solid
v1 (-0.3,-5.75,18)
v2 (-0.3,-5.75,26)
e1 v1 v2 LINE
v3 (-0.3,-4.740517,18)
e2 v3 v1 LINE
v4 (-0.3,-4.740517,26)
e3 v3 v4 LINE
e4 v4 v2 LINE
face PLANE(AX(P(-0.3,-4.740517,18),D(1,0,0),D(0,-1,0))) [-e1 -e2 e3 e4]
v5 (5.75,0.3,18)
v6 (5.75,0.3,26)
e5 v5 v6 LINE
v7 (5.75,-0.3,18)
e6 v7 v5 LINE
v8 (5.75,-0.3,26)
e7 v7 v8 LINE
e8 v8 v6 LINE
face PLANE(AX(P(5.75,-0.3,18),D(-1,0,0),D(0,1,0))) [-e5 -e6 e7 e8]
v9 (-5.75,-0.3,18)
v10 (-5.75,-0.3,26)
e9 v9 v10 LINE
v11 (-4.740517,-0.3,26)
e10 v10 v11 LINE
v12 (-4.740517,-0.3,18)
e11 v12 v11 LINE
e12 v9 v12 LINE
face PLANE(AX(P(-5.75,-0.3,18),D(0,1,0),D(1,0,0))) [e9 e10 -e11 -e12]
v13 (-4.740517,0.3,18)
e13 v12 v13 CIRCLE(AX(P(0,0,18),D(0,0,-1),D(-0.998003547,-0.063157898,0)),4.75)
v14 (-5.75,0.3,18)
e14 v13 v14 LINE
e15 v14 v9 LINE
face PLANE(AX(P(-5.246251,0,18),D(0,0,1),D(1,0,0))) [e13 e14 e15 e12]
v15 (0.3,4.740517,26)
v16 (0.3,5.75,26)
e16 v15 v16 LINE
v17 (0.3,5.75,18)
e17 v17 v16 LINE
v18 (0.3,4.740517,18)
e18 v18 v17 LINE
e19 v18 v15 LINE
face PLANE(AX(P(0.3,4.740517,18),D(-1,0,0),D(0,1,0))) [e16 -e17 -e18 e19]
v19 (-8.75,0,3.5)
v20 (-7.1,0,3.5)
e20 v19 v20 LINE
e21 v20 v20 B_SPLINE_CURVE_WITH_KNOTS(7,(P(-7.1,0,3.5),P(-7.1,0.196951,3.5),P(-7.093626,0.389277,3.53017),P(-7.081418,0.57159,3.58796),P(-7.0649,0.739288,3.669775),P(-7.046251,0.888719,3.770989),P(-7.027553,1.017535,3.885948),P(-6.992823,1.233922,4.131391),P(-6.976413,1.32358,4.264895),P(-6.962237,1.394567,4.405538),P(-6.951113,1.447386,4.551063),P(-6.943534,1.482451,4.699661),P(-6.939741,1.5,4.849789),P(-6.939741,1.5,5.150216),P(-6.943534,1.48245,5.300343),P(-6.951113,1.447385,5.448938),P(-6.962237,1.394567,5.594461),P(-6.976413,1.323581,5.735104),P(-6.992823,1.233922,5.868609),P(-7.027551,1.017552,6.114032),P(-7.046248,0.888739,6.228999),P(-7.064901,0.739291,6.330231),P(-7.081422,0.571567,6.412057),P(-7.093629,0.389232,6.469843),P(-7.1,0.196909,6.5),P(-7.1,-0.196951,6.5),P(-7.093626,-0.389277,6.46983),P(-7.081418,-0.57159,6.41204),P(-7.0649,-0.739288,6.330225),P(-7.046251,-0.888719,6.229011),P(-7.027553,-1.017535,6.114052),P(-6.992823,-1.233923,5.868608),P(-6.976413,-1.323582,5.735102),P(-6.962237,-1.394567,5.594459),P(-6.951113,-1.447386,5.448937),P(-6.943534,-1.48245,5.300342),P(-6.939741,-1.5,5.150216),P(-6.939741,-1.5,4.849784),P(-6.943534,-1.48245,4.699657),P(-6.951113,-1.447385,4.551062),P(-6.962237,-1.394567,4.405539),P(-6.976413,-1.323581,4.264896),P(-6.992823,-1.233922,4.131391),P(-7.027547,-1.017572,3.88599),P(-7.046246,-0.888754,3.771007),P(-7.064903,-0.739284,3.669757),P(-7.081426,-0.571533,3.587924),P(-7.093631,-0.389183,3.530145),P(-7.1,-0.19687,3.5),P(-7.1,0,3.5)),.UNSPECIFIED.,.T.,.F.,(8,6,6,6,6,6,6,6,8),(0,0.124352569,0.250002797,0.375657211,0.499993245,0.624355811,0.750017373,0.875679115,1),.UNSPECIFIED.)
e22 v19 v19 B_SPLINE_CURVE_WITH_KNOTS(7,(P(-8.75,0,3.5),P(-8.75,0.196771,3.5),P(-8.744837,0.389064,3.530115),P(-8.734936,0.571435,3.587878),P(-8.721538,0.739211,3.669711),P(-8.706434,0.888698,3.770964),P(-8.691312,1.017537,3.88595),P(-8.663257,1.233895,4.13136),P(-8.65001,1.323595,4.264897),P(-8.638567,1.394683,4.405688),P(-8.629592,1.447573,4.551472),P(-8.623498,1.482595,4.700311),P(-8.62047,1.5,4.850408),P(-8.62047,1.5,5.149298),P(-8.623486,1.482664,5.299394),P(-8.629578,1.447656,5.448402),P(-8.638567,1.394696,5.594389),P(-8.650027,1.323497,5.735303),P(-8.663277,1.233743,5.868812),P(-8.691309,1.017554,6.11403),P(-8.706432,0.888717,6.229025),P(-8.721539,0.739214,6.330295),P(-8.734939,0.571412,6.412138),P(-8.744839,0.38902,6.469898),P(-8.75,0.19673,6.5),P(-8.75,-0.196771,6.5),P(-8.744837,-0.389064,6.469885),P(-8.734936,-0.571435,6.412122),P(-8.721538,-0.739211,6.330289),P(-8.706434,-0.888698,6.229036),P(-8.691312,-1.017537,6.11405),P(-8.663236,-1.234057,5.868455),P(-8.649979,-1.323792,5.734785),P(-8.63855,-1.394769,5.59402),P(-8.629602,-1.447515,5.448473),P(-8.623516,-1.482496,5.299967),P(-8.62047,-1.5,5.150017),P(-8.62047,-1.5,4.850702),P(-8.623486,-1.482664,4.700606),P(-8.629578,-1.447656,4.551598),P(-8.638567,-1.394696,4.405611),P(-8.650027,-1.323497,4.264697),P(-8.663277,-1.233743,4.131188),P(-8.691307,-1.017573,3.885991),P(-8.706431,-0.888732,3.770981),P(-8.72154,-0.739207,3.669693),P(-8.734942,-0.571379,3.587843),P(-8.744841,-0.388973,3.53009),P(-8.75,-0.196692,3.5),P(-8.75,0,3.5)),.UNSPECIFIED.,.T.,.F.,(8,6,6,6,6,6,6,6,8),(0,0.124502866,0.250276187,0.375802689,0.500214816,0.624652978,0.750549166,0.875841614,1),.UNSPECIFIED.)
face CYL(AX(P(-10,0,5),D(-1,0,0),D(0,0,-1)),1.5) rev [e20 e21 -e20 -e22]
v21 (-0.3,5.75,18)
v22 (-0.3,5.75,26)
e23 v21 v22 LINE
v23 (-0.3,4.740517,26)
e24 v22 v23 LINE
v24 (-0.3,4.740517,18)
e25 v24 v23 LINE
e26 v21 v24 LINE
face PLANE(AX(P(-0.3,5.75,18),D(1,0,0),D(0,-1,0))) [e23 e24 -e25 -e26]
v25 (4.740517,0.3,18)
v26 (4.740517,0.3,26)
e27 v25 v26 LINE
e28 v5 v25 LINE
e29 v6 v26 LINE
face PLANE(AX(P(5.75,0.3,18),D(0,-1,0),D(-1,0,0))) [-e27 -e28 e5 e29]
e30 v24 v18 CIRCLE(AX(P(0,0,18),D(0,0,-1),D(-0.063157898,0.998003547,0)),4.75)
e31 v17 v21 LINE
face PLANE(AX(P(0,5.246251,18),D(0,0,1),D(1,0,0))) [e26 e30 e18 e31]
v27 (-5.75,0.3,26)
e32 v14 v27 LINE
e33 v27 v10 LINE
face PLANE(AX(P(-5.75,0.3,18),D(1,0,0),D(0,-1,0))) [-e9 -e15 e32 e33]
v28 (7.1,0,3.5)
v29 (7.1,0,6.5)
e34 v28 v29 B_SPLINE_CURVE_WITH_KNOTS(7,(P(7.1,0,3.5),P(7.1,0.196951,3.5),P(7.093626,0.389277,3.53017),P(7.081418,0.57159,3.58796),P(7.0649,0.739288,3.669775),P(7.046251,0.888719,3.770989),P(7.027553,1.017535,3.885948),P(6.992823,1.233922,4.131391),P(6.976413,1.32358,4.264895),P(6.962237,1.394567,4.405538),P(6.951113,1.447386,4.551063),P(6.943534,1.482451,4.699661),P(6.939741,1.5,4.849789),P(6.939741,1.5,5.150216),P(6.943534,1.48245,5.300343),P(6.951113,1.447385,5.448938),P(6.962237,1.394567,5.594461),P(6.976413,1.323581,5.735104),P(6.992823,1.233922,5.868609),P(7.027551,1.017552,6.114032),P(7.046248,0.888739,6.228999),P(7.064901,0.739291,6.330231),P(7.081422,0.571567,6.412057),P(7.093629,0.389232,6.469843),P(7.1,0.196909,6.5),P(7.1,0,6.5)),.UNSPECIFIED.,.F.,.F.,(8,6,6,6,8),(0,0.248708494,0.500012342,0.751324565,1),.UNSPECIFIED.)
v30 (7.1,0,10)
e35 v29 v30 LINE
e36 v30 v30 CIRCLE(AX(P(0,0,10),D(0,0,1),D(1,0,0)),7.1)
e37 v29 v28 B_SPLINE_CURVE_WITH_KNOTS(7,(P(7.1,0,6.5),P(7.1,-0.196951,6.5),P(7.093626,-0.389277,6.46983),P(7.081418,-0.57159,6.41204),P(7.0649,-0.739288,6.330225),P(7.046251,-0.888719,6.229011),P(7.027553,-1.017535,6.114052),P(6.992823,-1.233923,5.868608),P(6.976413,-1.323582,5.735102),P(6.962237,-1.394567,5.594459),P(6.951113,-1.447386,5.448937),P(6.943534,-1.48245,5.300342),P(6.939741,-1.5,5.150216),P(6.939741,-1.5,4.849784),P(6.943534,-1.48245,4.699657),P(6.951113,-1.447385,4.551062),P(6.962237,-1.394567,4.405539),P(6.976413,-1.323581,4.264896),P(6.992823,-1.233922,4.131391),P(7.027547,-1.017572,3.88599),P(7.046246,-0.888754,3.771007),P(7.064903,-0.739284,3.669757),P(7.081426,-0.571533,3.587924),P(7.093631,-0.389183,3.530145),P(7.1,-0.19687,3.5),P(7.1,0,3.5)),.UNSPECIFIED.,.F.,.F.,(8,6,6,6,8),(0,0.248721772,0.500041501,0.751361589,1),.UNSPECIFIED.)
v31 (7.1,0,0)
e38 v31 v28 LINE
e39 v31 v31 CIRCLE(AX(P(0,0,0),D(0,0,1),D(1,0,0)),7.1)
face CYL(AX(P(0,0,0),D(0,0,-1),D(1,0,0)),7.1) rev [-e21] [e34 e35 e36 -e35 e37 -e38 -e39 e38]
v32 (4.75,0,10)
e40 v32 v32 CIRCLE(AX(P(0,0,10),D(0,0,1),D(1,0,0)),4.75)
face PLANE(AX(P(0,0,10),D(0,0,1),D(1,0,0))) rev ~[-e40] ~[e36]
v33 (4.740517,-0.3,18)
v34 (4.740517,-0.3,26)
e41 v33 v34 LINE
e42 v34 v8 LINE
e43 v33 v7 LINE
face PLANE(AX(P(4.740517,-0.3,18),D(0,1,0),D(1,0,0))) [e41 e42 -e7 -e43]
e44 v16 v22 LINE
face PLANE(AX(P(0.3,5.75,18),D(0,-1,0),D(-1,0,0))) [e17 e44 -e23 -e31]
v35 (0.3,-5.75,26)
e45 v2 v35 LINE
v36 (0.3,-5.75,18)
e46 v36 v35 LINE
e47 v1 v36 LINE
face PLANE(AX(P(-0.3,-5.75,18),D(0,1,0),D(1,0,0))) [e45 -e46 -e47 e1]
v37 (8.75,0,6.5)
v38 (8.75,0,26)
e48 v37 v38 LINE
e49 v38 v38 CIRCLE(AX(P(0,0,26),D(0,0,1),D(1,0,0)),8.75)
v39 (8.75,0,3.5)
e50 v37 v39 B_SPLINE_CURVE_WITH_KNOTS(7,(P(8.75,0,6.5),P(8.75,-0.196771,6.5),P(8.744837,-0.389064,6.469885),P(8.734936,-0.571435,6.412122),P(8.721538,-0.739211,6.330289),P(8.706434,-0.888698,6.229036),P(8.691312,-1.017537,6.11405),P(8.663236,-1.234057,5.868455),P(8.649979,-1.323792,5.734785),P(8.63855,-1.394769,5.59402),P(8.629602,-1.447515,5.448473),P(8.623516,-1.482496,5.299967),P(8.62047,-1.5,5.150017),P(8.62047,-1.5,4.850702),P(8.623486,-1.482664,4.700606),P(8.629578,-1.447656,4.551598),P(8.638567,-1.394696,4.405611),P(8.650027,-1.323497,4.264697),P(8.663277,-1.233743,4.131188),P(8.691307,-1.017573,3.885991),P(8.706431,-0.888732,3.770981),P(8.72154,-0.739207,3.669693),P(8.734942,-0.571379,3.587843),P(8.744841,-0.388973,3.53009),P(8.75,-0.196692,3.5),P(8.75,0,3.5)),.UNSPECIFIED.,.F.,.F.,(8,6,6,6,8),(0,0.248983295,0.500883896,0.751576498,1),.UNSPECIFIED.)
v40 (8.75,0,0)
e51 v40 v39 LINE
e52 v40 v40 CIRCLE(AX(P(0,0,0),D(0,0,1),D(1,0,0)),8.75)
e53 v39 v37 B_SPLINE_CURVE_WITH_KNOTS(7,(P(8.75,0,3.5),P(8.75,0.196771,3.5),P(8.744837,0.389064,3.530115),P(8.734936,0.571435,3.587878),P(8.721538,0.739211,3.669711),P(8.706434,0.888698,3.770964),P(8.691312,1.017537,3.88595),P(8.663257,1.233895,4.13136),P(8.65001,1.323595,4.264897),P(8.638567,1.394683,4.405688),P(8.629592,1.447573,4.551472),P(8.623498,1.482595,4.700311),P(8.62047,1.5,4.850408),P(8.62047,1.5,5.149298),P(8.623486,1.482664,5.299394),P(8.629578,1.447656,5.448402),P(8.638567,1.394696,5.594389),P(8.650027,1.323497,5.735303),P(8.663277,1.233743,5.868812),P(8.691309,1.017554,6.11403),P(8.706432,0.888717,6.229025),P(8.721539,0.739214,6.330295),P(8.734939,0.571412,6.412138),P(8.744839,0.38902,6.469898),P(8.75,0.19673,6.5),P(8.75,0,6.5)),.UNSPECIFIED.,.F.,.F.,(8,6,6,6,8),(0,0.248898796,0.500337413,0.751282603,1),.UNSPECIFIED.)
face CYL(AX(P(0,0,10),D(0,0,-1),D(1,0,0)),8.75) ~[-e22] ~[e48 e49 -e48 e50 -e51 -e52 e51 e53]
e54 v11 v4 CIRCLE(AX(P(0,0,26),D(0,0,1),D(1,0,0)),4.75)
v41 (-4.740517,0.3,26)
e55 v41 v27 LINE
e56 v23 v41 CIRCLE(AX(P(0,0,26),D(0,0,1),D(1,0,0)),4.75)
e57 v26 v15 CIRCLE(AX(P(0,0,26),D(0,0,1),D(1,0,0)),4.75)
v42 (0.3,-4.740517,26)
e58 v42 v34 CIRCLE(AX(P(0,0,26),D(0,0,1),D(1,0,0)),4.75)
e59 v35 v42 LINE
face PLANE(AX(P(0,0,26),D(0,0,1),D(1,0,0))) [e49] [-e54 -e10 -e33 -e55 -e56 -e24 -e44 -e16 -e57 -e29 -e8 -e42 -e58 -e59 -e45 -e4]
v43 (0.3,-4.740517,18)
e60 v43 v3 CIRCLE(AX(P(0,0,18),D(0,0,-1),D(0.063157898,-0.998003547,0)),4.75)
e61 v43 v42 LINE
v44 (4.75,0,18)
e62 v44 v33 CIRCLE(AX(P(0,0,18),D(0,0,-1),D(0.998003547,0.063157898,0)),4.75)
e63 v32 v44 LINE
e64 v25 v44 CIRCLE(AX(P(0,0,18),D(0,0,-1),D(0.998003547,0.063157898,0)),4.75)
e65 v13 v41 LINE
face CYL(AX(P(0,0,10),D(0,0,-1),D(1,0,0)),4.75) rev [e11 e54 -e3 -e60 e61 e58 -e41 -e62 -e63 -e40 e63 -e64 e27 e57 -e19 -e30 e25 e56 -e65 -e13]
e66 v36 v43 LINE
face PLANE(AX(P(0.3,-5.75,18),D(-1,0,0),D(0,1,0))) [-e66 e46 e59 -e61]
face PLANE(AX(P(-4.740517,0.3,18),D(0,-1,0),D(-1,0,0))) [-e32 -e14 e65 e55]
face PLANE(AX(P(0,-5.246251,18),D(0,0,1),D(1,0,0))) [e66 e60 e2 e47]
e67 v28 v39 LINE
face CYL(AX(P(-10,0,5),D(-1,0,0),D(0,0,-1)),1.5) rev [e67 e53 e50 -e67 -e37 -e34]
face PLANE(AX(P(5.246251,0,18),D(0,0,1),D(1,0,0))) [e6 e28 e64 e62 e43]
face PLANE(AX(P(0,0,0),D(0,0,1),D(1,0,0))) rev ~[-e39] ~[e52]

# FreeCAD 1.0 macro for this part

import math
import FreeCAD as App
import Part
import Sketcher

V = App.Vector

doc = App.newDocument("Part")
body = doc.addObject("PartDesign::Body", "Body")

# Sketch on XY plane
sketch1 = body.newObject("Sketcher::SketchObject", "Sketch")
sketch1.AttachmentSupport = (doc.getObject("XY_Plane"), [""])
sketch1.MapMode = "FlatFace"
sketch1.addGeometry(Part.Circle(V(0, 0, 0), V(0, 0, 1), 9), False)
sketch1.addGeometry(Part.Circle(V(0, 0, 0), V(0, 0, 1), 7), False)
sketch1.addConstraint(Sketcher.Constraint("Coincident", 0, 3, -1, 1))
sketch1.addConstraint(Sketcher.Constraint("Coincident", 1, 3, -1, 1))
sketch1.addConstraint(Sketcher.Constraint("Diameter", 0, 17.5))
sketch1.addConstraint(Sketcher.Constraint("Diameter", 1, 14.2))
pad1 = body.newObject("PartDesign::Pad", "Pad")
pad1.Profile = sketch1
pad1.Length = 10

# Sketch on YZ plane
sketch2 = body.newObject("Sketcher::SketchObject", "Sketch001")
sketch2.AttachmentSupport = (doc.getObject("YZ_Plane"), [""])
sketch2.MapMode = "FlatFace"
sketch2.addGeometry(Part.Circle(V(0, 5, 0), V(0, 0, 1), 1.5), False)
sketch2.addConstraint(Sketcher.Constraint("PointOnObject", 0, 3, -2))
sketch2.addConstraint(Sketcher.Constraint("Diameter", 0, 3.0))
sketch2.addConstraint(Sketcher.Constraint("DistanceY", -1, 1, 0, 3, 5.0))
pocket1 = body.newObject("PartDesign::Pocket", "Pocket")
pocket1.Profile = sketch2
pocket1.Type = "ThroughAll"
pocket1.Midplane = True

# Sketch on XY plane
sketch3 = body.newObject("Sketcher::SketchObject", "Sketch002")
sketch3.AttachmentSupport = (doc.getObject("XY_Plane"), [""])
sketch3.MapMode = "FlatFace"
sketch3.AttachmentOffset = App.Placement(V(0, 0, 10), App.Rotation())
sketch3.addGeometry(Part.Circle(V(0, 0, 0), V(0, 0, 1), 8.8), False)
sketch3.addGeometry(Part.Circle(V(0, 0, 0), V(0, 0, 1), 4.8), False)
sketch3.addConstraint(Sketcher.Constraint("Coincident", 0, 3, -1, 1))
sketch3.addConstraint(Sketcher.Constraint("Coincident", 1, 3, -1, 1))
sketch3.addConstraint(Sketcher.Constraint("Diameter", 0, 17.5))
sketch3.addConstraint(Sketcher.Constraint("Diameter", 1, 9.5))
pad2 = body.newObject("PartDesign::Pad", "Pad001")
pad2.Profile = sketch3
pad2.Length = 16

# Sketch on XY plane
sketch4 = body.newObject("Sketcher::SketchObject", "Sketch003")
sketch4.AttachmentSupport = (doc.getObject("XY_Plane"), [""])
sketch4.MapMode = "FlatFace"
sketch4.AttachmentOffset = App.Placement(V(0, 0, 18), App.Rotation())
sketch4.addGeometry(Part.LineSegment(V(-0.3, -4.7, 0), V(-0.3, -5.8, 0)), False)
sketch4.addGeometry(Part.LineSegment(V(-0.3, -5.8, 0), V(0.3, -5.8, 0)), False)
sketch4.addGeometry(Part.LineSegment(V(0.3, -5.8, 0), V(0.3, -4.7, 0)), False)
sketch4.addGeometry(Part.ArcOfCircle(Part.Circle(V(0, 0, 0), V(0, 0, 1), 4.7), math.radians(-93.62), math.radians(-86.38)), False)
sketch4.addGeometry(Part.LineSegment(V(-5.8, -0.3, 0), V(-4.7, -0.3, 0)), False)
sketch4.addGeometry(Part.ArcOfCircle(Part.Circle(V(0, 0, 0), V(0, 0, 1), 4.7), math.radians(176.38), math.radians(183.62)), False)
sketch4.addGeometry(Part.LineSegment(V(-4.7, 0.3, 0), V(-5.8, 0.3, 0)), False)
sketch4.addGeometry(Part.LineSegment(V(-5.8, 0.3, 0), V(-5.8, -0.3, 0)), False)
sketch4.addGeometry(Part.LineSegment(V(-0.3, 5.8, 0), V(-0.3, 4.7, 0)), False)
sketch4.addGeometry(Part.ArcOfCircle(Part.Circle(V(0, 0, 0), V(0, 0, 1), 4.7), math.radians(86.38), math.radians(93.62)), False)
sketch4.addGeometry(Part.LineSegment(V(0.3, 4.7, 0), V(0.3, 5.8, 0)), False)
sketch4.addGeometry(Part.LineSegment(V(0.3, 5.8, 0), V(-0.3, 5.8, 0)), False)
sketch4.addGeometry(Part.LineSegment(V(5.8, 0.3, 0), V(4.7, 0.3, 0)), False)
sketch4.addGeometry(Part.ArcOfCircle(Part.Circle(V(0, 0, 0), V(0, 0, 1), 4.7), math.radians(-3.62), math.radians(3.62)), False)
sketch4.addGeometry(Part.LineSegment(V(4.7, -0.3, 0), V(5.8, -0.3, 0)), False)
sketch4.addGeometry(Part.LineSegment(V(5.8, -0.3, 0), V(5.8, 0.3, 0)), False)
sketch4.addConstraint(Sketcher.Constraint("Coincident", 0, 2, 1, 1))
sketch4.addConstraint(Sketcher.Constraint("Coincident", 1, 2, 2, 1))
sketch4.addConstraint(Sketcher.Constraint("Coincident", 2, 2, 3, 2))
sketch4.addConstraint(Sketcher.Constraint("Coincident", 3, 1, 0, 1))
sketch4.addConstraint(Sketcher.Constraint("Coincident", 4, 2, 5, 2))
sketch4.addConstraint(Sketcher.Constraint("Coincident", 5, 1, 6, 1))
sketch4.addConstraint(Sketcher.Constraint("Coincident", 6, 2, 7, 1))
sketch4.addConstraint(Sketcher.Constraint("Coincident", 7, 2, 4, 1))
sketch4.addConstraint(Sketcher.Constraint("Coincident", 8, 2, 9, 2))
sketch4.addConstraint(Sketcher.Constraint("Coincident", 9, 1, 10, 1))
sketch4.addConstraint(Sketcher.Constraint("Coincident", 10, 2, 11, 1))
sketch4.addConstraint(Sketcher.Constraint("Coincident", 11, 2, 8, 1))
sketch4.addConstraint(Sketcher.Constraint("Coincident", 12, 2, 13, 2))
sketch4.addConstraint(Sketcher.Constraint("Coincident", 13, 1, 14, 1))
sketch4.addConstraint(Sketcher.Constraint("Coincident", 14, 2, 15, 1))
sketch4.addConstraint(Sketcher.Constraint("Coincident", 15, 2, 12, 1))
sketch4.addConstraint(Sketcher.Constraint("Vertical", 0))
sketch4.addConstraint(Sketcher.Constraint("Horizontal", 1))
sketch4.addConstraint(Sketcher.Constraint("Vertical", 2))
sketch4.addConstraint(Sketcher.Constraint("Horizontal", 4))
sketch4.addConstraint(Sketcher.Constraint("Horizontal", 6))
sketch4.addConstraint(Sketcher.Constraint("Vertical", 7))
sketch4.addConstraint(Sketcher.Constraint("Vertical", 8))
sketch4.addConstraint(Sketcher.Constraint("Vertical", 10))
sketch4.addConstraint(Sketcher.Constraint("Horizontal", 11))
sketch4.addConstraint(Sketcher.Constraint("Horizontal", 12))
sketch4.addConstraint(Sketcher.Constraint("Horizontal", 14))
sketch4.addConstraint(Sketcher.Constraint("Vertical", 15))
sketch4.addConstraint(Sketcher.Constraint("Coincident", 3, 3, -1, 1))
sketch4.addConstraint(Sketcher.Constraint("Coincident", 5, 3, -1, 1))
sketch4.addConstraint(Sketcher.Constraint("Coincident", 9, 3, -1, 1))
sketch4.addConstraint(Sketcher.Constraint("Coincident", 13, 3, -1, 1))
sketch4.addConstraint(Sketcher.Constraint("Equal", 3, 5))
sketch4.addConstraint(Sketcher.Constraint("Equal", 5, 9))
sketch4.addConstraint(Sketcher.Constraint("Equal", 9, 13))
sketch4.addConstraint(Sketcher.Constraint("Symmetric", 0, 2, 10, 2, -1, 1))
sketch4.addConstraint(Sketcher.Constraint("Symmetric", 6, 2, 14, 2, -1, 1))
sketch4.addConstraint(Sketcher.Constraint("Horizontal", 2, 2, 3, 1))
sketch4.addConstraint(Sketcher.Constraint("Horizontal", 8, 2, 9, 1))
sketch4.addConstraint(Sketcher.Constraint("Horizontal", 6, 2, 12, 2))
sketch4.addConstraint(Sketcher.Constraint("Horizontal", 7, 2, 13, 1))
sketch4.addConstraint(Sketcher.Constraint("Equal", 14, 0))
sketch4.addConstraint(Sketcher.Constraint("Equal", 11, 7))
sketch4.addConstraint(Sketcher.Constraint("Radius", 3, 4.75))
sketch4.addConstraint(Sketcher.Constraint("DistanceX", 1, 1, 1, 2, 0.6))
sketch4.addConstraint(Sketcher.Constraint("DistanceY", 0, 2, -1, 1, 5.75))
pocket2 = body.newObject("PartDesign::Pocket", "Pocket001")
pocket2.Profile = sketch4
pocket2.Length = 8
pocket2.Reversed = True

doc.recompute()
